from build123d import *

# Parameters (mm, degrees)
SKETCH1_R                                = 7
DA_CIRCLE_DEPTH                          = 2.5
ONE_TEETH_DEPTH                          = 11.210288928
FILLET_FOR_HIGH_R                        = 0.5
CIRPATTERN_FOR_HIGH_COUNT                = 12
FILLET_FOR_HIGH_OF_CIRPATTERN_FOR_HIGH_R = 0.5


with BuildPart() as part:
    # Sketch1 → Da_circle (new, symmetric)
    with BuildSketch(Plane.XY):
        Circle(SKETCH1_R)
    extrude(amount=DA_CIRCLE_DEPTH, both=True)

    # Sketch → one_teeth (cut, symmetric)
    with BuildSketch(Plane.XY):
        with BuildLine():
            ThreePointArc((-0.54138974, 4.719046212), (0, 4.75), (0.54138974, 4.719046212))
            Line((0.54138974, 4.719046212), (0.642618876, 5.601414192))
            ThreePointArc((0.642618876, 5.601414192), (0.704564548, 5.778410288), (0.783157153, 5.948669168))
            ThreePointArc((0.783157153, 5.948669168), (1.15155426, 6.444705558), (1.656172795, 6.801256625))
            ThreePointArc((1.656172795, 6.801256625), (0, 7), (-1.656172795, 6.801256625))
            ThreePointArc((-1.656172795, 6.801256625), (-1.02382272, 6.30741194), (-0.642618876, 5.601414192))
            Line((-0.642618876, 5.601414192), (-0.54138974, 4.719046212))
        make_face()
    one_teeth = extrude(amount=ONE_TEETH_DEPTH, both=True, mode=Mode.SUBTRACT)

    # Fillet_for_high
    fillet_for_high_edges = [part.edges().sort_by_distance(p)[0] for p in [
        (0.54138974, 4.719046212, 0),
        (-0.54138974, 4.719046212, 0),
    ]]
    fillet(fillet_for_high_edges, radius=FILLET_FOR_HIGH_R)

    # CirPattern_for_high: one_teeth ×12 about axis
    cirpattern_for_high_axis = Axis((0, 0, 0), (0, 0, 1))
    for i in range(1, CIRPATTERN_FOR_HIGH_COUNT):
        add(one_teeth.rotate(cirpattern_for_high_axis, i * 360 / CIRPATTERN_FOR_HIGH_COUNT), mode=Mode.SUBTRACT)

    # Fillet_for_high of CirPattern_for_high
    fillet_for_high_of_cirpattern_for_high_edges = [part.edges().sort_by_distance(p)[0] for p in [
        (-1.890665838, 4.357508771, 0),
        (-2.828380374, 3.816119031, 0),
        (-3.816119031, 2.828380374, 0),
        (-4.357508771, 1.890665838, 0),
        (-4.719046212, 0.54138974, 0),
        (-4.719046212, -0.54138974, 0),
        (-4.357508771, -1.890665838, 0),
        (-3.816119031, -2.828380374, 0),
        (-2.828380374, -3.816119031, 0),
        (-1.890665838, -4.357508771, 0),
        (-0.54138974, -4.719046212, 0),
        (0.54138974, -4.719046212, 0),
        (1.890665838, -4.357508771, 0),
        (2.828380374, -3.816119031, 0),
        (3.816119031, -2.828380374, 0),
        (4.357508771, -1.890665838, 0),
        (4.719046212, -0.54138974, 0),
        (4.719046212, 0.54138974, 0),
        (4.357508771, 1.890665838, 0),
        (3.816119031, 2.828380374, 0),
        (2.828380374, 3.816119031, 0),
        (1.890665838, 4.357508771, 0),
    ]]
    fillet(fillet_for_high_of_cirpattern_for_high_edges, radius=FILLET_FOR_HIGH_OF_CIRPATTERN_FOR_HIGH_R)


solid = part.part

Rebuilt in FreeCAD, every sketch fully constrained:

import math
import FreeCAD as App
import Part
import Sketcher
Q = App.Units.Quantity


def edges_at(feature, points):
    """Names of the edges that pass closest to the given points."""
    edges = feature.Shape.Edges
    near = lambda p: min(range(len(edges)), key=lambda i: edges[i].distToShape(Part.Vertex(*p))[0])
    return sorted({f"Edge{near(p) + 1}" for p in points})

doc = App.newDocument("Part")
body = doc.addObject("PartDesign::Body", "Body")

# Sketch on XY plane
sketch1 = doc.addObject("Sketcher::SketchObject", "Sketch")
body.addObject(sketch1)
sketch1.AttachmentSupport = (doc.XY_Plane, [""])
sketch1.MapMode = "FlatFace"
sketch1.addGeometry(Part.Circle(App.Vector(0, 0, 0), App.Vector(0, 0, 1), 7), False)
sketch1.addConstraint([
    Sketcher.Constraint("Coincident", 0, 3, -1, 1),
    Sketcher.Constraint("Diameter", 0, Q("14 mm")),
])
pad1 = doc.addObject("PartDesign::Pad", "Pad")
body.addObject(pad1)
pad1.Profile = sketch1
pad1.Length = 5
pad1.Midplane = True

# Sketch on XY plane
sketch2 = doc.addObject("Sketcher::SketchObject", "Sketch001")
body.addObject(sketch2)
sketch2.AttachmentSupport = (doc.XY_Plane, [""])
sketch2.MapMode = "FlatFace"
sketch2.addGeometry([
    Part.ArcOfCircle(Part.Circle(App.Vector(0, 0, 0), App.Vector(0, 0, 1), 4.75), math.radians(83.46), math.radians(96.54)),  # 0
    Part.LineSegment(App.Vector(0.54, 4.72, 0), App.Vector(0.64, 5.6, 0)),  # 1
    Part.ArcOfCircle(Part.Circle(App.Vector(2.52, 5.04, 0), App.Vector(0, 0, 1), 1.96), math.radians(152.48), math.radians(163.46)),  # 2
    Part.ArcOfCircle(Part.Circle(App.Vector(2.52, 5.04, 0), App.Vector(0, 0, 1), 1.96), math.radians(116), math.radians(152)),  # 3
    Part.ArcOfCircle(Part.Circle(App.Vector(0, 0, 0), App.Vector(0, 0, 1), 7), math.radians(76), math.radians(104)),  # 4
    Part.ArcOfCircle(Part.Circle(App.Vector(-2.52, 5.04, 0), App.Vector(0, 0, 1), 1.96), math.radians(17), math.radians(64)),  # 5
    Part.LineSegment(App.Vector(-0.64, 5.6, 0), App.Vector(-0.54, 4.72, 0)),  # 6
], False)
sketch2.addConstraint([
    Sketcher.Constraint("Coincident", 0, 1, 1, 1),
    Sketcher.Constraint("Coincident", 1, 2, 2, 2),
    Sketcher.Constraint("Tangent", 2, 1, 3, 2),
    Sketcher.Constraint("Coincident", 3, 1, 4, 1),
    Sketcher.Constraint("Coincident", 4, 2, 5, 2),
    Sketcher.Constraint("Coincident", 5, 1, 6, 1),
    Sketcher.Constraint("Coincident", 6, 2, 0, 2),
    Sketcher.Constraint("Coincident", 0, 3, -1, 1),
    Sketcher.Constraint("Coincident", 4, 3, -1, 1),
    Sketcher.Constraint("Equal", 2, 3),
    Sketcher.Constraint("Equal", 3, 5),
    Sketcher.Constraint("Symmetric", 2, 3, 5, 3, -2),
    Sketcher.Constraint("Horizontal", 1, 2, 5, 1),
    Sketcher.Constraint("Horizontal", 0, 1, 6, 2),
    Sketcher.Constraint("Radius", 4, Q("7 mm")),
    Sketcher.Constraint("Radius", 0, Q("4.75 mm")),
    Sketcher.Constraint("Radius", 2, Q("1.958111 mm")),
    Sketcher.Constraint("DistanceX", -1, 1, 2, 3, Q("2.519661 mm")),
    Sketcher.Constraint("DistanceY", -1, 1, 2, 3, Q("5.043819 mm")),
    Sketcher.Constraint("DistanceX", -1, 1, 0, 1, Q("0.54139 mm")),
    Sketcher.Constraint("DistanceX", -1, 1, 1, 2, Q("0.642619 mm")),
    Sketcher.Constraint("DistanceY", -1, 1, 2, 1, Q("5.948669 mm")),
])
pocket1 = doc.addObject("PartDesign::Pocket", "Pocket")
body.addObject(pocket1)
pocket1.Profile = sketch2
pocket1.Length = 22.420578
pocket1.Midplane = True
doc.recompute()

fillet = doc.addObject("PartDesign::Fillet", "Fillet")
body.addObject(fillet)
fillet.Base = (pocket1, edges_at(pocket1, [(0.541, 4.719, 0), (-0.541, 4.719, 0)]))
fillet.Radius = 0.5
doc.recompute()

polarpattern = doc.addObject("PartDesign::PolarPattern", "PolarPattern")
body.addObject(polarpattern)
polarpattern.Originals = [pocket1]
polarpattern.Axis = (doc.Z_Axis, [""])
polarpattern.Angle = 360
polarpattern.Occurrences = 12
body.Tip = polarpattern
doc.recompute()

fillet2 = doc.addObject("PartDesign::Fillet", "Fillet001")
body.addObject(fillet2)
fillet2.Base = (polarpattern, edges_at(polarpattern, [
    (-1.891, 4.358, 0),
    (-2.828, 3.816, 0),
    (-3.816, 2.828, 0),
    (-4.358, 1.891, 0),
    (-4.719, 0.541, 0),
    (-4.719, -0.541, 0),
    (-4.358, -1.891, 0),
    (-3.816, -2.828, 0),
    (-2.828, -3.816, 0),
    (-1.891, -4.358, 0),
    (-0.541, -4.719, 0),
    (0.541, -4.719, 0),
    (1.891, -4.358, 0),
    (2.828, -3.816, 0),
    (3.816, -2.828, 0),
    (4.358, -1.891, 0),
    (4.719, -0.541, 0),
    (4.719, 0.541, 0),
    (4.358, 1.891, 0),
    (3.816, 2.828, 0),
    (2.828, 3.816, 0),
    (1.891, 4.358, 0),
]))
fillet2.Radius = 0.5

doc.recompute()
